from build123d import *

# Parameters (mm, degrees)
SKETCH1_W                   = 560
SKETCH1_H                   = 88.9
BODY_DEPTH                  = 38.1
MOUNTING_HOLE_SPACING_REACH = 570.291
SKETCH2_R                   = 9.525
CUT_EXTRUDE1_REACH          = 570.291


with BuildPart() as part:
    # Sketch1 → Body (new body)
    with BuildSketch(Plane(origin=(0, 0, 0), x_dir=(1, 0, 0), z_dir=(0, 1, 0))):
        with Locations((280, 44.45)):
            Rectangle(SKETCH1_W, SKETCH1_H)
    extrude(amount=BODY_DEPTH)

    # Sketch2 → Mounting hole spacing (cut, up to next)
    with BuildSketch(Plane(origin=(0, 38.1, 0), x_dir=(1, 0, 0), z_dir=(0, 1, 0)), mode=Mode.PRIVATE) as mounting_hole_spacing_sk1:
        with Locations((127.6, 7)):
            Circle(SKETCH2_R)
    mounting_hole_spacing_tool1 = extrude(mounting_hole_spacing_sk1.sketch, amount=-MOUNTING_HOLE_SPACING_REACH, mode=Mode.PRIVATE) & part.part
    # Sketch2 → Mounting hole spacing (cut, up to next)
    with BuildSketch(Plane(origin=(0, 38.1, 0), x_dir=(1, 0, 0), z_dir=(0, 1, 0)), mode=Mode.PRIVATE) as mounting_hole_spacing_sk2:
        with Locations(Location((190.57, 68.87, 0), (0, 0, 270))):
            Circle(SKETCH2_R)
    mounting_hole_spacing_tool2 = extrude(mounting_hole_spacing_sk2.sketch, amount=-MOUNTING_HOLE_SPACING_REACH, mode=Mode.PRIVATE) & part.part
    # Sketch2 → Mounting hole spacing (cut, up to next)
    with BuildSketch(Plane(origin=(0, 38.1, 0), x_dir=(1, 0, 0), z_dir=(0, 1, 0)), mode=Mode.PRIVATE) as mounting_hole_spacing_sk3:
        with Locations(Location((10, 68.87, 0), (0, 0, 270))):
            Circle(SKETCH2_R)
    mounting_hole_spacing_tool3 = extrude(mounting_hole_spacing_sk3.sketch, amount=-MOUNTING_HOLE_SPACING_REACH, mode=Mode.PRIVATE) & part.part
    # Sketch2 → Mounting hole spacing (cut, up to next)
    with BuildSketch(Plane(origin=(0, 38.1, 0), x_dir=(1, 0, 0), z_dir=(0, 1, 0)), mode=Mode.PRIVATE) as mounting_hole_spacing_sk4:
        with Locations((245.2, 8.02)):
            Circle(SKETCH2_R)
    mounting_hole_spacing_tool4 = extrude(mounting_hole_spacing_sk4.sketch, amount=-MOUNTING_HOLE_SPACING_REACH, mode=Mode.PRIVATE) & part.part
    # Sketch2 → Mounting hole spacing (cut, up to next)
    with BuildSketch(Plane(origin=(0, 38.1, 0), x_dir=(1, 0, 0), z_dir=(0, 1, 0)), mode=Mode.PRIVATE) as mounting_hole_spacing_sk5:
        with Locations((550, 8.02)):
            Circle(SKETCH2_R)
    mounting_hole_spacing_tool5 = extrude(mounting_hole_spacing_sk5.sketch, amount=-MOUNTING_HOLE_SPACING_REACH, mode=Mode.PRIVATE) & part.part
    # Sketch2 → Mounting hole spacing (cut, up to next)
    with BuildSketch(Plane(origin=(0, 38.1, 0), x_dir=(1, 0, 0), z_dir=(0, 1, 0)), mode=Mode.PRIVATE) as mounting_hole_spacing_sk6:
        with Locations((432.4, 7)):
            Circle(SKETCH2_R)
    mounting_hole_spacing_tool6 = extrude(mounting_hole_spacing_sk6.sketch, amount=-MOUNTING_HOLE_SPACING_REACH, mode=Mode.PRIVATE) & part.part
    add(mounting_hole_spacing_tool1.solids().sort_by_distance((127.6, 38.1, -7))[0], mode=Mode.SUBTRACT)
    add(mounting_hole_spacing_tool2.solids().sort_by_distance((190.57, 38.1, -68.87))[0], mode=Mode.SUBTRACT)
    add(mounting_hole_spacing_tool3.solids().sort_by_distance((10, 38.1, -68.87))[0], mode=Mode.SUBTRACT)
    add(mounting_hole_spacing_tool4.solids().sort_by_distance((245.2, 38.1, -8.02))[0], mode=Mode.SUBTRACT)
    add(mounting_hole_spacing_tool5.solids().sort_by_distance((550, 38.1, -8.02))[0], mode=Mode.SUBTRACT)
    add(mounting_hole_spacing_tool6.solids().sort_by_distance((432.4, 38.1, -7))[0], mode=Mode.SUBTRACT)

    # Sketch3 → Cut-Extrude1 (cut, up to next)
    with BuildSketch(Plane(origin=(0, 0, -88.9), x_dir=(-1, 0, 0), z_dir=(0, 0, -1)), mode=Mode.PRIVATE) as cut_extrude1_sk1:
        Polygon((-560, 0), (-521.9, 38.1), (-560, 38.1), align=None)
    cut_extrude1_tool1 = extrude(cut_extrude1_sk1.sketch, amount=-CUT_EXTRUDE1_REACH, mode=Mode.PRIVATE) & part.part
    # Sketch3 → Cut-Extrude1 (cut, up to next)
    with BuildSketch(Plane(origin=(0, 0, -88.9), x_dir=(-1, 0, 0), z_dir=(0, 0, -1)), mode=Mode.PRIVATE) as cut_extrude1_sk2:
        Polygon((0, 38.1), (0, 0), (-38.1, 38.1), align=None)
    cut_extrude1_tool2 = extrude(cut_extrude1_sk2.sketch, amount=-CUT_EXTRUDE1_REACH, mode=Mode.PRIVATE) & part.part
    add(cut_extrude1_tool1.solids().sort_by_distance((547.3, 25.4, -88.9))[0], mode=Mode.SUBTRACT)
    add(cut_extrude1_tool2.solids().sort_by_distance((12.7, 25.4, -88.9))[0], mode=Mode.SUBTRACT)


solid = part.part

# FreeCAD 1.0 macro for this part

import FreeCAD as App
import Part
import Sketcher

V = App.Vector
Q = App.Units.Quantity

doc = App.newDocument("Part")
body = doc.addObject("PartDesign::Body", "Body")

# Sketch on XZ plane
sketch1 = doc.addObject("Sketcher::SketchObject", "Sketch")
body.addObject(sketch1)
sketch1.AttachmentSupport = (doc.XZ_Plane, [""])
sketch1.MapMode = "FlatFace"
sketch1.addGeometry(Part.LineSegment(V(0, -89, 0), V(0, 0, 0)), False)
sketch1.addGeometry(Part.LineSegment(V(0, 0, 0), V(560, 0, 0)), False)
sketch1.addGeometry(Part.LineSegment(V(560, 0, 0), V(560, -89, 0)), False)
sketch1.addGeometry(Part.LineSegment(V(560, -89, 0), V(0, -89, 0)), False)
sketch1.addConstraint(Sketcher.Constraint("Coincident", 0, 2, 1, 1))
sketch1.addConstraint(Sketcher.Constraint("Coincident", 1, 2, 2, 1))
sketch1.addConstraint(Sketcher.Constraint("Coincident", 2, 2, 3, 1))
sketch1.addConstraint(Sketcher.Constraint("Coincident", 3, 2, 0, 1))
sketch1.addConstraint(Sketcher.Constraint("Vertical", 0))
sketch1.addConstraint(Sketcher.Constraint("Horizontal", 1))
sketch1.addConstraint(Sketcher.Constraint("Vertical", 2))
sketch1.addConstraint(Sketcher.Constraint("Horizontal", 3))
sketch1.addConstraint(Sketcher.Constraint("Coincident", 0, 2, -1, 1))
sketch1.addConstraint(Sketcher.Constraint("DistanceY", 0, 1, 0, 2, Q("3.5 in")))
sketch1.addConstraint(Sketcher.Constraint("DistanceX", 1, 1, 1, 2, Q("560 mm")))
pad1 = doc.addObject("PartDesign::Pad", "Pad")
body.addObject(pad1)
pad1.Profile = sketch1
pad1.Length = Q("1.5 in")
pad1.Reversed = True

# Sketch on XZ plane
sketch2 = doc.addObject("Sketcher::SketchObject", "Sketch001")
body.addObject(sketch2)
sketch2.AttachmentSupport = (doc.XZ_Plane, [""])
sketch2.MapMode = "FlatFace"
sketch2.AttachmentOffset = App.Placement(V(0, 0, -1.5 * 25.4), App.Rotation())
sketch2.addGeometry(Part.Circle(V(128, -7, 0), V(0, 0, 1), 10), False)
sketch2.addConstraint(Sketcher.Constraint("Diameter", 0, Q("0.75 in")))
sketch2.addConstraint(Sketcher.Constraint("DistanceX", -1, 1, 0, 3, Q("127.6 mm")))
sketch2.addConstraint(Sketcher.Constraint("DistanceY", 0, 3, -1, 1, Q("7 mm")))
pocket1 = doc.addObject("PartDesign::Pocket", "Pocket")
body.addObject(pocket1)
pocket1.Profile = sketch2
pocket1.Type = "UpToFirst"
pocket1.Reversed = True

# Sketch on XZ plane
sketch3 = doc.addObject("Sketcher::SketchObject", "Sketch002")
body.addObject(sketch3)
sketch3.AttachmentSupport = (doc.XZ_Plane, [""])
sketch3.MapMode = "FlatFace"
sketch3.AttachmentOffset = App.Placement(V(0, 0, -1.5 * 25.4), App.Rotation())
sketch3.addGeometry(Part.Circle(V(191, -69, 0), V(0, 0, 1), 10), False)
sketch3.addConstraint(Sketcher.Constraint("Diameter", 0, Q("0.75 in")))
sketch3.addConstraint(Sketcher.Constraint("DistanceX", -1, 1, 0, 3, Q("190.57 mm")))
sketch3.addConstraint(Sketcher.Constraint("DistanceY", 0, 3, -1, 1, Q("68.87 mm")))
pocket2 = doc.addObject("PartDesign::Pocket", "Pocket001")
body.addObject(pocket2)
pocket2.Profile = sketch3
pocket2.Type = "UpToFirst"
pocket2.Reversed = True

# Sketch on XZ plane
sketch4 = doc.addObject("Sketcher::SketchObject", "Sketch003")
body.addObject(sketch4)
sketch4.AttachmentSupport = (doc.XZ_Plane, [""])
sketch4.MapMode = "FlatFace"
sketch4.AttachmentOffset = App.Placement(V(0, 0, -1.5 * 25.4), App.Rotation())
sketch4.addGeometry(Part.Circle(V(10, -69, 0), V(0, 0, 1), 10), False)
sketch4.addConstraint(Sketcher.Constraint("Diameter", 0, Q("0.75 in")))
sketch4.addConstraint(Sketcher.Constraint("DistanceX", -1, 1, 0, 3, Q("10 mm")))
sketch4.addConstraint(Sketcher.Constraint("DistanceY", 0, 3, -1, 1, Q("68.87 mm")))
pocket3 = doc.addObject("PartDesign::Pocket", "Pocket002")
body.addObject(pocket3)
pocket3.Profile = sketch4
pocket3.Type = "UpToFirst"
pocket3.Reversed = True

# Sketch on XZ plane
sketch5 = doc.addObject("Sketcher::SketchObject", "Sketch004")
body.addObject(sketch5)
sketch5.AttachmentSupport = (doc.XZ_Plane, [""])
sketch5.MapMode = "FlatFace"
sketch5.AttachmentOffset = App.Placement(V(0, 0, -1.5 * 25.4), App.Rotation())
sketch5.addGeometry(Part.Circle(V(245, -8, 0), V(0, 0, 1), 10), False)
sketch5.addConstraint(Sketcher.Constraint("Diameter", 0, Q("0.75 in")))
sketch5.addConstraint(Sketcher.Constraint("DistanceX", -1, 1, 0, 3, Q("245.2 mm")))
sketch5.addConstraint(Sketcher.Constraint("DistanceY", 0, 3, -1, 1, Q("8.02 mm")))
pocket4 = doc.addObject("PartDesign::Pocket", "Pocket003")
body.addObject(pocket4)
pocket4.Profile = sketch5
pocket4.Type = "UpToFirst"
pocket4.Reversed = True

# Sketch on XZ plane
sketch6 = doc.addObject("Sketcher::SketchObject", "Sketch005")
body.addObject(sketch6)
sketch6.AttachmentSupport = (doc.XZ_Plane, [""])
sketch6.MapMode = "FlatFace"
sketch6.AttachmentOffset = App.Placement(V(0, 0, -1.5 * 25.4), App.Rotation())
sketch6.addGeometry(Part.Circle(V(550, -8, 0), V(0, 0, 1), 10), False)
sketch6.addConstraint(Sketcher.Constraint("Diameter", 0, Q("0.75 in")))
sketch6.addConstraint(Sketcher.Constraint("DistanceX", -1, 1, 0, 3, Q("550 mm")))
sketch6.addConstraint(Sketcher.Constraint("DistanceY", 0, 3, -1, 1, Q("8.02 mm")))
pocket5 = doc.addObject("PartDesign::Pocket", "Pocket004")
body.addObject(pocket5)
pocket5.Profile = sketch6
pocket5.Type = "UpToFirst"
pocket5.Reversed = True

# Sketch on XZ plane
sketch7 = doc.addObject("Sketcher::SketchObject", "Sketch006")
body.addObject(sketch7)
sketch7.AttachmentSupport = (doc.XZ_Plane, [""])
sketch7.MapMode = "FlatFace"
sketch7.AttachmentOffset = App.Placement(V(0, 0, -1.5 * 25.4), App.Rotation())
sketch7.addGeometry(Part.Circle(V(432, -7, 0), V(0, 0, 1), 10), False)
sketch7.addConstraint(Sketcher.Constraint("Diameter", 0, Q("0.75 in")))
sketch7.addConstraint(Sketcher.Constraint("DistanceX", -1, 1, 0, 3, Q("432.4 mm")))
sketch7.addConstraint(Sketcher.Constraint("DistanceY", 0, 3, -1, 1, Q("7 mm")))
pocket6 = doc.addObject("PartDesign::Pocket", "Pocket005")
body.addObject(pocket6)
pocket6.Profile = sketch7
pocket6.Type = "UpToFirst"
pocket6.Reversed = True

# Sketch on XY plane
sketch8 = doc.addObject("Sketcher::SketchObject", "Sketch007")
body.addObject(sketch8)
sketch8.AttachmentSupport = (doc.XY_Plane, [""])
sketch8.MapMode = "FlatFace"
sketch8.AttachmentOffset = App.Placement(V(0, 0, -3.5 * 25.4), App.Rotation())
sketch8.addGeometry(Part.LineSegment(V(560, 0, 0), V(522, 38, 0)), False)
sketch8.addGeometry(Part.LineSegment(V(522, 38, 0), V(560, 38, 0)), False)
sketch8.addGeometry(Part.LineSegment(V(560, 38, 0), V(560, 0, 0)), False)
sketch8.addConstraint(Sketcher.Constraint("Coincident", 0, 2, 1, 1))
sketch8.addConstraint(Sketcher.Constraint("Coincident", 1, 2, 2, 1))
sketch8.addConstraint(Sketcher.Constraint("Coincident", 2, 2, 0, 1))
sketch8.addConstraint(Sketcher.Constraint("Horizontal", 1))
sketch8.addConstraint(Sketcher.Constraint("Vertical", 2))
sketch8.addConstraint(Sketcher.Constraint("PointOnObject", 2, 2, -1))
sketch8.addConstraint(Sketcher.Constraint("Equal", 1, 2))
sketch8.addConstraint(Sketcher.Constraint("DistanceX", 1, 1, 1, 2, Q("1.5 in")))
sketch8.addConstraint(Sketcher.Constraint("DistanceX", -1, 1, 0, 2, Q("521.9 mm")))
pocket7 = doc.addObject("PartDesign::Pocket", "Pocket006")
body.addObject(pocket7)
pocket7.Profile = sketch8
pocket7.Length = Q("3.5 in")
pocket7.Reversed = True

# Sketch on XY plane
sketch9 = doc.addObject("Sketcher::SketchObject", "Sketch008")
body.addObject(sketch9)
sketch9.AttachmentSupport = (doc.XY_Plane, [""])
sketch9.MapMode = "FlatFace"
sketch9.AttachmentOffset = App.Placement(V(0, 0, -3.5 * 25.4), App.Rotation())
sketch9.addGeometry(Part.LineSegment(V(0, 0, 0), V(0, 38, 0)), False)
sketch9.addGeometry(Part.LineSegment(V(0, 38, 0), V(38, 38, 0)), False)
sketch9.addGeometry(Part.LineSegment(V(38, 38, 0), V(0, 0, 0)), False)
sketch9.addConstraint(Sketcher.Constraint("Coincident", 0, 2, 1, 1))
sketch9.addConstraint(Sketcher.Constraint("Coincident", 1, 2, 2, 1))
sketch9.addConstraint(Sketcher.Constraint("Coincident", 2, 2, 0, 1))
sketch9.addConstraint(Sketcher.Constraint("Vertical", 0))
sketch9.addConstraint(Sketcher.Constraint("Horizontal", 1))
sketch9.addConstraint(Sketcher.Constraint("Coincident", 2, 2, -1, 1))
sketch9.addConstraint(Sketcher.Constraint("Equal", 1, 0))
sketch9.addConstraint(Sketcher.Constraint("DistanceX", 1, 1, 1, 2, Q("1.5 in")))
pocket8 = doc.addObject("PartDesign::Pocket", "Pocket007")
body.addObject(pocket8)
pocket8.Profile = sketch9
pocket8.Length = Q("3.5 in")
pocket8.Reversed = True

doc.recompute()
